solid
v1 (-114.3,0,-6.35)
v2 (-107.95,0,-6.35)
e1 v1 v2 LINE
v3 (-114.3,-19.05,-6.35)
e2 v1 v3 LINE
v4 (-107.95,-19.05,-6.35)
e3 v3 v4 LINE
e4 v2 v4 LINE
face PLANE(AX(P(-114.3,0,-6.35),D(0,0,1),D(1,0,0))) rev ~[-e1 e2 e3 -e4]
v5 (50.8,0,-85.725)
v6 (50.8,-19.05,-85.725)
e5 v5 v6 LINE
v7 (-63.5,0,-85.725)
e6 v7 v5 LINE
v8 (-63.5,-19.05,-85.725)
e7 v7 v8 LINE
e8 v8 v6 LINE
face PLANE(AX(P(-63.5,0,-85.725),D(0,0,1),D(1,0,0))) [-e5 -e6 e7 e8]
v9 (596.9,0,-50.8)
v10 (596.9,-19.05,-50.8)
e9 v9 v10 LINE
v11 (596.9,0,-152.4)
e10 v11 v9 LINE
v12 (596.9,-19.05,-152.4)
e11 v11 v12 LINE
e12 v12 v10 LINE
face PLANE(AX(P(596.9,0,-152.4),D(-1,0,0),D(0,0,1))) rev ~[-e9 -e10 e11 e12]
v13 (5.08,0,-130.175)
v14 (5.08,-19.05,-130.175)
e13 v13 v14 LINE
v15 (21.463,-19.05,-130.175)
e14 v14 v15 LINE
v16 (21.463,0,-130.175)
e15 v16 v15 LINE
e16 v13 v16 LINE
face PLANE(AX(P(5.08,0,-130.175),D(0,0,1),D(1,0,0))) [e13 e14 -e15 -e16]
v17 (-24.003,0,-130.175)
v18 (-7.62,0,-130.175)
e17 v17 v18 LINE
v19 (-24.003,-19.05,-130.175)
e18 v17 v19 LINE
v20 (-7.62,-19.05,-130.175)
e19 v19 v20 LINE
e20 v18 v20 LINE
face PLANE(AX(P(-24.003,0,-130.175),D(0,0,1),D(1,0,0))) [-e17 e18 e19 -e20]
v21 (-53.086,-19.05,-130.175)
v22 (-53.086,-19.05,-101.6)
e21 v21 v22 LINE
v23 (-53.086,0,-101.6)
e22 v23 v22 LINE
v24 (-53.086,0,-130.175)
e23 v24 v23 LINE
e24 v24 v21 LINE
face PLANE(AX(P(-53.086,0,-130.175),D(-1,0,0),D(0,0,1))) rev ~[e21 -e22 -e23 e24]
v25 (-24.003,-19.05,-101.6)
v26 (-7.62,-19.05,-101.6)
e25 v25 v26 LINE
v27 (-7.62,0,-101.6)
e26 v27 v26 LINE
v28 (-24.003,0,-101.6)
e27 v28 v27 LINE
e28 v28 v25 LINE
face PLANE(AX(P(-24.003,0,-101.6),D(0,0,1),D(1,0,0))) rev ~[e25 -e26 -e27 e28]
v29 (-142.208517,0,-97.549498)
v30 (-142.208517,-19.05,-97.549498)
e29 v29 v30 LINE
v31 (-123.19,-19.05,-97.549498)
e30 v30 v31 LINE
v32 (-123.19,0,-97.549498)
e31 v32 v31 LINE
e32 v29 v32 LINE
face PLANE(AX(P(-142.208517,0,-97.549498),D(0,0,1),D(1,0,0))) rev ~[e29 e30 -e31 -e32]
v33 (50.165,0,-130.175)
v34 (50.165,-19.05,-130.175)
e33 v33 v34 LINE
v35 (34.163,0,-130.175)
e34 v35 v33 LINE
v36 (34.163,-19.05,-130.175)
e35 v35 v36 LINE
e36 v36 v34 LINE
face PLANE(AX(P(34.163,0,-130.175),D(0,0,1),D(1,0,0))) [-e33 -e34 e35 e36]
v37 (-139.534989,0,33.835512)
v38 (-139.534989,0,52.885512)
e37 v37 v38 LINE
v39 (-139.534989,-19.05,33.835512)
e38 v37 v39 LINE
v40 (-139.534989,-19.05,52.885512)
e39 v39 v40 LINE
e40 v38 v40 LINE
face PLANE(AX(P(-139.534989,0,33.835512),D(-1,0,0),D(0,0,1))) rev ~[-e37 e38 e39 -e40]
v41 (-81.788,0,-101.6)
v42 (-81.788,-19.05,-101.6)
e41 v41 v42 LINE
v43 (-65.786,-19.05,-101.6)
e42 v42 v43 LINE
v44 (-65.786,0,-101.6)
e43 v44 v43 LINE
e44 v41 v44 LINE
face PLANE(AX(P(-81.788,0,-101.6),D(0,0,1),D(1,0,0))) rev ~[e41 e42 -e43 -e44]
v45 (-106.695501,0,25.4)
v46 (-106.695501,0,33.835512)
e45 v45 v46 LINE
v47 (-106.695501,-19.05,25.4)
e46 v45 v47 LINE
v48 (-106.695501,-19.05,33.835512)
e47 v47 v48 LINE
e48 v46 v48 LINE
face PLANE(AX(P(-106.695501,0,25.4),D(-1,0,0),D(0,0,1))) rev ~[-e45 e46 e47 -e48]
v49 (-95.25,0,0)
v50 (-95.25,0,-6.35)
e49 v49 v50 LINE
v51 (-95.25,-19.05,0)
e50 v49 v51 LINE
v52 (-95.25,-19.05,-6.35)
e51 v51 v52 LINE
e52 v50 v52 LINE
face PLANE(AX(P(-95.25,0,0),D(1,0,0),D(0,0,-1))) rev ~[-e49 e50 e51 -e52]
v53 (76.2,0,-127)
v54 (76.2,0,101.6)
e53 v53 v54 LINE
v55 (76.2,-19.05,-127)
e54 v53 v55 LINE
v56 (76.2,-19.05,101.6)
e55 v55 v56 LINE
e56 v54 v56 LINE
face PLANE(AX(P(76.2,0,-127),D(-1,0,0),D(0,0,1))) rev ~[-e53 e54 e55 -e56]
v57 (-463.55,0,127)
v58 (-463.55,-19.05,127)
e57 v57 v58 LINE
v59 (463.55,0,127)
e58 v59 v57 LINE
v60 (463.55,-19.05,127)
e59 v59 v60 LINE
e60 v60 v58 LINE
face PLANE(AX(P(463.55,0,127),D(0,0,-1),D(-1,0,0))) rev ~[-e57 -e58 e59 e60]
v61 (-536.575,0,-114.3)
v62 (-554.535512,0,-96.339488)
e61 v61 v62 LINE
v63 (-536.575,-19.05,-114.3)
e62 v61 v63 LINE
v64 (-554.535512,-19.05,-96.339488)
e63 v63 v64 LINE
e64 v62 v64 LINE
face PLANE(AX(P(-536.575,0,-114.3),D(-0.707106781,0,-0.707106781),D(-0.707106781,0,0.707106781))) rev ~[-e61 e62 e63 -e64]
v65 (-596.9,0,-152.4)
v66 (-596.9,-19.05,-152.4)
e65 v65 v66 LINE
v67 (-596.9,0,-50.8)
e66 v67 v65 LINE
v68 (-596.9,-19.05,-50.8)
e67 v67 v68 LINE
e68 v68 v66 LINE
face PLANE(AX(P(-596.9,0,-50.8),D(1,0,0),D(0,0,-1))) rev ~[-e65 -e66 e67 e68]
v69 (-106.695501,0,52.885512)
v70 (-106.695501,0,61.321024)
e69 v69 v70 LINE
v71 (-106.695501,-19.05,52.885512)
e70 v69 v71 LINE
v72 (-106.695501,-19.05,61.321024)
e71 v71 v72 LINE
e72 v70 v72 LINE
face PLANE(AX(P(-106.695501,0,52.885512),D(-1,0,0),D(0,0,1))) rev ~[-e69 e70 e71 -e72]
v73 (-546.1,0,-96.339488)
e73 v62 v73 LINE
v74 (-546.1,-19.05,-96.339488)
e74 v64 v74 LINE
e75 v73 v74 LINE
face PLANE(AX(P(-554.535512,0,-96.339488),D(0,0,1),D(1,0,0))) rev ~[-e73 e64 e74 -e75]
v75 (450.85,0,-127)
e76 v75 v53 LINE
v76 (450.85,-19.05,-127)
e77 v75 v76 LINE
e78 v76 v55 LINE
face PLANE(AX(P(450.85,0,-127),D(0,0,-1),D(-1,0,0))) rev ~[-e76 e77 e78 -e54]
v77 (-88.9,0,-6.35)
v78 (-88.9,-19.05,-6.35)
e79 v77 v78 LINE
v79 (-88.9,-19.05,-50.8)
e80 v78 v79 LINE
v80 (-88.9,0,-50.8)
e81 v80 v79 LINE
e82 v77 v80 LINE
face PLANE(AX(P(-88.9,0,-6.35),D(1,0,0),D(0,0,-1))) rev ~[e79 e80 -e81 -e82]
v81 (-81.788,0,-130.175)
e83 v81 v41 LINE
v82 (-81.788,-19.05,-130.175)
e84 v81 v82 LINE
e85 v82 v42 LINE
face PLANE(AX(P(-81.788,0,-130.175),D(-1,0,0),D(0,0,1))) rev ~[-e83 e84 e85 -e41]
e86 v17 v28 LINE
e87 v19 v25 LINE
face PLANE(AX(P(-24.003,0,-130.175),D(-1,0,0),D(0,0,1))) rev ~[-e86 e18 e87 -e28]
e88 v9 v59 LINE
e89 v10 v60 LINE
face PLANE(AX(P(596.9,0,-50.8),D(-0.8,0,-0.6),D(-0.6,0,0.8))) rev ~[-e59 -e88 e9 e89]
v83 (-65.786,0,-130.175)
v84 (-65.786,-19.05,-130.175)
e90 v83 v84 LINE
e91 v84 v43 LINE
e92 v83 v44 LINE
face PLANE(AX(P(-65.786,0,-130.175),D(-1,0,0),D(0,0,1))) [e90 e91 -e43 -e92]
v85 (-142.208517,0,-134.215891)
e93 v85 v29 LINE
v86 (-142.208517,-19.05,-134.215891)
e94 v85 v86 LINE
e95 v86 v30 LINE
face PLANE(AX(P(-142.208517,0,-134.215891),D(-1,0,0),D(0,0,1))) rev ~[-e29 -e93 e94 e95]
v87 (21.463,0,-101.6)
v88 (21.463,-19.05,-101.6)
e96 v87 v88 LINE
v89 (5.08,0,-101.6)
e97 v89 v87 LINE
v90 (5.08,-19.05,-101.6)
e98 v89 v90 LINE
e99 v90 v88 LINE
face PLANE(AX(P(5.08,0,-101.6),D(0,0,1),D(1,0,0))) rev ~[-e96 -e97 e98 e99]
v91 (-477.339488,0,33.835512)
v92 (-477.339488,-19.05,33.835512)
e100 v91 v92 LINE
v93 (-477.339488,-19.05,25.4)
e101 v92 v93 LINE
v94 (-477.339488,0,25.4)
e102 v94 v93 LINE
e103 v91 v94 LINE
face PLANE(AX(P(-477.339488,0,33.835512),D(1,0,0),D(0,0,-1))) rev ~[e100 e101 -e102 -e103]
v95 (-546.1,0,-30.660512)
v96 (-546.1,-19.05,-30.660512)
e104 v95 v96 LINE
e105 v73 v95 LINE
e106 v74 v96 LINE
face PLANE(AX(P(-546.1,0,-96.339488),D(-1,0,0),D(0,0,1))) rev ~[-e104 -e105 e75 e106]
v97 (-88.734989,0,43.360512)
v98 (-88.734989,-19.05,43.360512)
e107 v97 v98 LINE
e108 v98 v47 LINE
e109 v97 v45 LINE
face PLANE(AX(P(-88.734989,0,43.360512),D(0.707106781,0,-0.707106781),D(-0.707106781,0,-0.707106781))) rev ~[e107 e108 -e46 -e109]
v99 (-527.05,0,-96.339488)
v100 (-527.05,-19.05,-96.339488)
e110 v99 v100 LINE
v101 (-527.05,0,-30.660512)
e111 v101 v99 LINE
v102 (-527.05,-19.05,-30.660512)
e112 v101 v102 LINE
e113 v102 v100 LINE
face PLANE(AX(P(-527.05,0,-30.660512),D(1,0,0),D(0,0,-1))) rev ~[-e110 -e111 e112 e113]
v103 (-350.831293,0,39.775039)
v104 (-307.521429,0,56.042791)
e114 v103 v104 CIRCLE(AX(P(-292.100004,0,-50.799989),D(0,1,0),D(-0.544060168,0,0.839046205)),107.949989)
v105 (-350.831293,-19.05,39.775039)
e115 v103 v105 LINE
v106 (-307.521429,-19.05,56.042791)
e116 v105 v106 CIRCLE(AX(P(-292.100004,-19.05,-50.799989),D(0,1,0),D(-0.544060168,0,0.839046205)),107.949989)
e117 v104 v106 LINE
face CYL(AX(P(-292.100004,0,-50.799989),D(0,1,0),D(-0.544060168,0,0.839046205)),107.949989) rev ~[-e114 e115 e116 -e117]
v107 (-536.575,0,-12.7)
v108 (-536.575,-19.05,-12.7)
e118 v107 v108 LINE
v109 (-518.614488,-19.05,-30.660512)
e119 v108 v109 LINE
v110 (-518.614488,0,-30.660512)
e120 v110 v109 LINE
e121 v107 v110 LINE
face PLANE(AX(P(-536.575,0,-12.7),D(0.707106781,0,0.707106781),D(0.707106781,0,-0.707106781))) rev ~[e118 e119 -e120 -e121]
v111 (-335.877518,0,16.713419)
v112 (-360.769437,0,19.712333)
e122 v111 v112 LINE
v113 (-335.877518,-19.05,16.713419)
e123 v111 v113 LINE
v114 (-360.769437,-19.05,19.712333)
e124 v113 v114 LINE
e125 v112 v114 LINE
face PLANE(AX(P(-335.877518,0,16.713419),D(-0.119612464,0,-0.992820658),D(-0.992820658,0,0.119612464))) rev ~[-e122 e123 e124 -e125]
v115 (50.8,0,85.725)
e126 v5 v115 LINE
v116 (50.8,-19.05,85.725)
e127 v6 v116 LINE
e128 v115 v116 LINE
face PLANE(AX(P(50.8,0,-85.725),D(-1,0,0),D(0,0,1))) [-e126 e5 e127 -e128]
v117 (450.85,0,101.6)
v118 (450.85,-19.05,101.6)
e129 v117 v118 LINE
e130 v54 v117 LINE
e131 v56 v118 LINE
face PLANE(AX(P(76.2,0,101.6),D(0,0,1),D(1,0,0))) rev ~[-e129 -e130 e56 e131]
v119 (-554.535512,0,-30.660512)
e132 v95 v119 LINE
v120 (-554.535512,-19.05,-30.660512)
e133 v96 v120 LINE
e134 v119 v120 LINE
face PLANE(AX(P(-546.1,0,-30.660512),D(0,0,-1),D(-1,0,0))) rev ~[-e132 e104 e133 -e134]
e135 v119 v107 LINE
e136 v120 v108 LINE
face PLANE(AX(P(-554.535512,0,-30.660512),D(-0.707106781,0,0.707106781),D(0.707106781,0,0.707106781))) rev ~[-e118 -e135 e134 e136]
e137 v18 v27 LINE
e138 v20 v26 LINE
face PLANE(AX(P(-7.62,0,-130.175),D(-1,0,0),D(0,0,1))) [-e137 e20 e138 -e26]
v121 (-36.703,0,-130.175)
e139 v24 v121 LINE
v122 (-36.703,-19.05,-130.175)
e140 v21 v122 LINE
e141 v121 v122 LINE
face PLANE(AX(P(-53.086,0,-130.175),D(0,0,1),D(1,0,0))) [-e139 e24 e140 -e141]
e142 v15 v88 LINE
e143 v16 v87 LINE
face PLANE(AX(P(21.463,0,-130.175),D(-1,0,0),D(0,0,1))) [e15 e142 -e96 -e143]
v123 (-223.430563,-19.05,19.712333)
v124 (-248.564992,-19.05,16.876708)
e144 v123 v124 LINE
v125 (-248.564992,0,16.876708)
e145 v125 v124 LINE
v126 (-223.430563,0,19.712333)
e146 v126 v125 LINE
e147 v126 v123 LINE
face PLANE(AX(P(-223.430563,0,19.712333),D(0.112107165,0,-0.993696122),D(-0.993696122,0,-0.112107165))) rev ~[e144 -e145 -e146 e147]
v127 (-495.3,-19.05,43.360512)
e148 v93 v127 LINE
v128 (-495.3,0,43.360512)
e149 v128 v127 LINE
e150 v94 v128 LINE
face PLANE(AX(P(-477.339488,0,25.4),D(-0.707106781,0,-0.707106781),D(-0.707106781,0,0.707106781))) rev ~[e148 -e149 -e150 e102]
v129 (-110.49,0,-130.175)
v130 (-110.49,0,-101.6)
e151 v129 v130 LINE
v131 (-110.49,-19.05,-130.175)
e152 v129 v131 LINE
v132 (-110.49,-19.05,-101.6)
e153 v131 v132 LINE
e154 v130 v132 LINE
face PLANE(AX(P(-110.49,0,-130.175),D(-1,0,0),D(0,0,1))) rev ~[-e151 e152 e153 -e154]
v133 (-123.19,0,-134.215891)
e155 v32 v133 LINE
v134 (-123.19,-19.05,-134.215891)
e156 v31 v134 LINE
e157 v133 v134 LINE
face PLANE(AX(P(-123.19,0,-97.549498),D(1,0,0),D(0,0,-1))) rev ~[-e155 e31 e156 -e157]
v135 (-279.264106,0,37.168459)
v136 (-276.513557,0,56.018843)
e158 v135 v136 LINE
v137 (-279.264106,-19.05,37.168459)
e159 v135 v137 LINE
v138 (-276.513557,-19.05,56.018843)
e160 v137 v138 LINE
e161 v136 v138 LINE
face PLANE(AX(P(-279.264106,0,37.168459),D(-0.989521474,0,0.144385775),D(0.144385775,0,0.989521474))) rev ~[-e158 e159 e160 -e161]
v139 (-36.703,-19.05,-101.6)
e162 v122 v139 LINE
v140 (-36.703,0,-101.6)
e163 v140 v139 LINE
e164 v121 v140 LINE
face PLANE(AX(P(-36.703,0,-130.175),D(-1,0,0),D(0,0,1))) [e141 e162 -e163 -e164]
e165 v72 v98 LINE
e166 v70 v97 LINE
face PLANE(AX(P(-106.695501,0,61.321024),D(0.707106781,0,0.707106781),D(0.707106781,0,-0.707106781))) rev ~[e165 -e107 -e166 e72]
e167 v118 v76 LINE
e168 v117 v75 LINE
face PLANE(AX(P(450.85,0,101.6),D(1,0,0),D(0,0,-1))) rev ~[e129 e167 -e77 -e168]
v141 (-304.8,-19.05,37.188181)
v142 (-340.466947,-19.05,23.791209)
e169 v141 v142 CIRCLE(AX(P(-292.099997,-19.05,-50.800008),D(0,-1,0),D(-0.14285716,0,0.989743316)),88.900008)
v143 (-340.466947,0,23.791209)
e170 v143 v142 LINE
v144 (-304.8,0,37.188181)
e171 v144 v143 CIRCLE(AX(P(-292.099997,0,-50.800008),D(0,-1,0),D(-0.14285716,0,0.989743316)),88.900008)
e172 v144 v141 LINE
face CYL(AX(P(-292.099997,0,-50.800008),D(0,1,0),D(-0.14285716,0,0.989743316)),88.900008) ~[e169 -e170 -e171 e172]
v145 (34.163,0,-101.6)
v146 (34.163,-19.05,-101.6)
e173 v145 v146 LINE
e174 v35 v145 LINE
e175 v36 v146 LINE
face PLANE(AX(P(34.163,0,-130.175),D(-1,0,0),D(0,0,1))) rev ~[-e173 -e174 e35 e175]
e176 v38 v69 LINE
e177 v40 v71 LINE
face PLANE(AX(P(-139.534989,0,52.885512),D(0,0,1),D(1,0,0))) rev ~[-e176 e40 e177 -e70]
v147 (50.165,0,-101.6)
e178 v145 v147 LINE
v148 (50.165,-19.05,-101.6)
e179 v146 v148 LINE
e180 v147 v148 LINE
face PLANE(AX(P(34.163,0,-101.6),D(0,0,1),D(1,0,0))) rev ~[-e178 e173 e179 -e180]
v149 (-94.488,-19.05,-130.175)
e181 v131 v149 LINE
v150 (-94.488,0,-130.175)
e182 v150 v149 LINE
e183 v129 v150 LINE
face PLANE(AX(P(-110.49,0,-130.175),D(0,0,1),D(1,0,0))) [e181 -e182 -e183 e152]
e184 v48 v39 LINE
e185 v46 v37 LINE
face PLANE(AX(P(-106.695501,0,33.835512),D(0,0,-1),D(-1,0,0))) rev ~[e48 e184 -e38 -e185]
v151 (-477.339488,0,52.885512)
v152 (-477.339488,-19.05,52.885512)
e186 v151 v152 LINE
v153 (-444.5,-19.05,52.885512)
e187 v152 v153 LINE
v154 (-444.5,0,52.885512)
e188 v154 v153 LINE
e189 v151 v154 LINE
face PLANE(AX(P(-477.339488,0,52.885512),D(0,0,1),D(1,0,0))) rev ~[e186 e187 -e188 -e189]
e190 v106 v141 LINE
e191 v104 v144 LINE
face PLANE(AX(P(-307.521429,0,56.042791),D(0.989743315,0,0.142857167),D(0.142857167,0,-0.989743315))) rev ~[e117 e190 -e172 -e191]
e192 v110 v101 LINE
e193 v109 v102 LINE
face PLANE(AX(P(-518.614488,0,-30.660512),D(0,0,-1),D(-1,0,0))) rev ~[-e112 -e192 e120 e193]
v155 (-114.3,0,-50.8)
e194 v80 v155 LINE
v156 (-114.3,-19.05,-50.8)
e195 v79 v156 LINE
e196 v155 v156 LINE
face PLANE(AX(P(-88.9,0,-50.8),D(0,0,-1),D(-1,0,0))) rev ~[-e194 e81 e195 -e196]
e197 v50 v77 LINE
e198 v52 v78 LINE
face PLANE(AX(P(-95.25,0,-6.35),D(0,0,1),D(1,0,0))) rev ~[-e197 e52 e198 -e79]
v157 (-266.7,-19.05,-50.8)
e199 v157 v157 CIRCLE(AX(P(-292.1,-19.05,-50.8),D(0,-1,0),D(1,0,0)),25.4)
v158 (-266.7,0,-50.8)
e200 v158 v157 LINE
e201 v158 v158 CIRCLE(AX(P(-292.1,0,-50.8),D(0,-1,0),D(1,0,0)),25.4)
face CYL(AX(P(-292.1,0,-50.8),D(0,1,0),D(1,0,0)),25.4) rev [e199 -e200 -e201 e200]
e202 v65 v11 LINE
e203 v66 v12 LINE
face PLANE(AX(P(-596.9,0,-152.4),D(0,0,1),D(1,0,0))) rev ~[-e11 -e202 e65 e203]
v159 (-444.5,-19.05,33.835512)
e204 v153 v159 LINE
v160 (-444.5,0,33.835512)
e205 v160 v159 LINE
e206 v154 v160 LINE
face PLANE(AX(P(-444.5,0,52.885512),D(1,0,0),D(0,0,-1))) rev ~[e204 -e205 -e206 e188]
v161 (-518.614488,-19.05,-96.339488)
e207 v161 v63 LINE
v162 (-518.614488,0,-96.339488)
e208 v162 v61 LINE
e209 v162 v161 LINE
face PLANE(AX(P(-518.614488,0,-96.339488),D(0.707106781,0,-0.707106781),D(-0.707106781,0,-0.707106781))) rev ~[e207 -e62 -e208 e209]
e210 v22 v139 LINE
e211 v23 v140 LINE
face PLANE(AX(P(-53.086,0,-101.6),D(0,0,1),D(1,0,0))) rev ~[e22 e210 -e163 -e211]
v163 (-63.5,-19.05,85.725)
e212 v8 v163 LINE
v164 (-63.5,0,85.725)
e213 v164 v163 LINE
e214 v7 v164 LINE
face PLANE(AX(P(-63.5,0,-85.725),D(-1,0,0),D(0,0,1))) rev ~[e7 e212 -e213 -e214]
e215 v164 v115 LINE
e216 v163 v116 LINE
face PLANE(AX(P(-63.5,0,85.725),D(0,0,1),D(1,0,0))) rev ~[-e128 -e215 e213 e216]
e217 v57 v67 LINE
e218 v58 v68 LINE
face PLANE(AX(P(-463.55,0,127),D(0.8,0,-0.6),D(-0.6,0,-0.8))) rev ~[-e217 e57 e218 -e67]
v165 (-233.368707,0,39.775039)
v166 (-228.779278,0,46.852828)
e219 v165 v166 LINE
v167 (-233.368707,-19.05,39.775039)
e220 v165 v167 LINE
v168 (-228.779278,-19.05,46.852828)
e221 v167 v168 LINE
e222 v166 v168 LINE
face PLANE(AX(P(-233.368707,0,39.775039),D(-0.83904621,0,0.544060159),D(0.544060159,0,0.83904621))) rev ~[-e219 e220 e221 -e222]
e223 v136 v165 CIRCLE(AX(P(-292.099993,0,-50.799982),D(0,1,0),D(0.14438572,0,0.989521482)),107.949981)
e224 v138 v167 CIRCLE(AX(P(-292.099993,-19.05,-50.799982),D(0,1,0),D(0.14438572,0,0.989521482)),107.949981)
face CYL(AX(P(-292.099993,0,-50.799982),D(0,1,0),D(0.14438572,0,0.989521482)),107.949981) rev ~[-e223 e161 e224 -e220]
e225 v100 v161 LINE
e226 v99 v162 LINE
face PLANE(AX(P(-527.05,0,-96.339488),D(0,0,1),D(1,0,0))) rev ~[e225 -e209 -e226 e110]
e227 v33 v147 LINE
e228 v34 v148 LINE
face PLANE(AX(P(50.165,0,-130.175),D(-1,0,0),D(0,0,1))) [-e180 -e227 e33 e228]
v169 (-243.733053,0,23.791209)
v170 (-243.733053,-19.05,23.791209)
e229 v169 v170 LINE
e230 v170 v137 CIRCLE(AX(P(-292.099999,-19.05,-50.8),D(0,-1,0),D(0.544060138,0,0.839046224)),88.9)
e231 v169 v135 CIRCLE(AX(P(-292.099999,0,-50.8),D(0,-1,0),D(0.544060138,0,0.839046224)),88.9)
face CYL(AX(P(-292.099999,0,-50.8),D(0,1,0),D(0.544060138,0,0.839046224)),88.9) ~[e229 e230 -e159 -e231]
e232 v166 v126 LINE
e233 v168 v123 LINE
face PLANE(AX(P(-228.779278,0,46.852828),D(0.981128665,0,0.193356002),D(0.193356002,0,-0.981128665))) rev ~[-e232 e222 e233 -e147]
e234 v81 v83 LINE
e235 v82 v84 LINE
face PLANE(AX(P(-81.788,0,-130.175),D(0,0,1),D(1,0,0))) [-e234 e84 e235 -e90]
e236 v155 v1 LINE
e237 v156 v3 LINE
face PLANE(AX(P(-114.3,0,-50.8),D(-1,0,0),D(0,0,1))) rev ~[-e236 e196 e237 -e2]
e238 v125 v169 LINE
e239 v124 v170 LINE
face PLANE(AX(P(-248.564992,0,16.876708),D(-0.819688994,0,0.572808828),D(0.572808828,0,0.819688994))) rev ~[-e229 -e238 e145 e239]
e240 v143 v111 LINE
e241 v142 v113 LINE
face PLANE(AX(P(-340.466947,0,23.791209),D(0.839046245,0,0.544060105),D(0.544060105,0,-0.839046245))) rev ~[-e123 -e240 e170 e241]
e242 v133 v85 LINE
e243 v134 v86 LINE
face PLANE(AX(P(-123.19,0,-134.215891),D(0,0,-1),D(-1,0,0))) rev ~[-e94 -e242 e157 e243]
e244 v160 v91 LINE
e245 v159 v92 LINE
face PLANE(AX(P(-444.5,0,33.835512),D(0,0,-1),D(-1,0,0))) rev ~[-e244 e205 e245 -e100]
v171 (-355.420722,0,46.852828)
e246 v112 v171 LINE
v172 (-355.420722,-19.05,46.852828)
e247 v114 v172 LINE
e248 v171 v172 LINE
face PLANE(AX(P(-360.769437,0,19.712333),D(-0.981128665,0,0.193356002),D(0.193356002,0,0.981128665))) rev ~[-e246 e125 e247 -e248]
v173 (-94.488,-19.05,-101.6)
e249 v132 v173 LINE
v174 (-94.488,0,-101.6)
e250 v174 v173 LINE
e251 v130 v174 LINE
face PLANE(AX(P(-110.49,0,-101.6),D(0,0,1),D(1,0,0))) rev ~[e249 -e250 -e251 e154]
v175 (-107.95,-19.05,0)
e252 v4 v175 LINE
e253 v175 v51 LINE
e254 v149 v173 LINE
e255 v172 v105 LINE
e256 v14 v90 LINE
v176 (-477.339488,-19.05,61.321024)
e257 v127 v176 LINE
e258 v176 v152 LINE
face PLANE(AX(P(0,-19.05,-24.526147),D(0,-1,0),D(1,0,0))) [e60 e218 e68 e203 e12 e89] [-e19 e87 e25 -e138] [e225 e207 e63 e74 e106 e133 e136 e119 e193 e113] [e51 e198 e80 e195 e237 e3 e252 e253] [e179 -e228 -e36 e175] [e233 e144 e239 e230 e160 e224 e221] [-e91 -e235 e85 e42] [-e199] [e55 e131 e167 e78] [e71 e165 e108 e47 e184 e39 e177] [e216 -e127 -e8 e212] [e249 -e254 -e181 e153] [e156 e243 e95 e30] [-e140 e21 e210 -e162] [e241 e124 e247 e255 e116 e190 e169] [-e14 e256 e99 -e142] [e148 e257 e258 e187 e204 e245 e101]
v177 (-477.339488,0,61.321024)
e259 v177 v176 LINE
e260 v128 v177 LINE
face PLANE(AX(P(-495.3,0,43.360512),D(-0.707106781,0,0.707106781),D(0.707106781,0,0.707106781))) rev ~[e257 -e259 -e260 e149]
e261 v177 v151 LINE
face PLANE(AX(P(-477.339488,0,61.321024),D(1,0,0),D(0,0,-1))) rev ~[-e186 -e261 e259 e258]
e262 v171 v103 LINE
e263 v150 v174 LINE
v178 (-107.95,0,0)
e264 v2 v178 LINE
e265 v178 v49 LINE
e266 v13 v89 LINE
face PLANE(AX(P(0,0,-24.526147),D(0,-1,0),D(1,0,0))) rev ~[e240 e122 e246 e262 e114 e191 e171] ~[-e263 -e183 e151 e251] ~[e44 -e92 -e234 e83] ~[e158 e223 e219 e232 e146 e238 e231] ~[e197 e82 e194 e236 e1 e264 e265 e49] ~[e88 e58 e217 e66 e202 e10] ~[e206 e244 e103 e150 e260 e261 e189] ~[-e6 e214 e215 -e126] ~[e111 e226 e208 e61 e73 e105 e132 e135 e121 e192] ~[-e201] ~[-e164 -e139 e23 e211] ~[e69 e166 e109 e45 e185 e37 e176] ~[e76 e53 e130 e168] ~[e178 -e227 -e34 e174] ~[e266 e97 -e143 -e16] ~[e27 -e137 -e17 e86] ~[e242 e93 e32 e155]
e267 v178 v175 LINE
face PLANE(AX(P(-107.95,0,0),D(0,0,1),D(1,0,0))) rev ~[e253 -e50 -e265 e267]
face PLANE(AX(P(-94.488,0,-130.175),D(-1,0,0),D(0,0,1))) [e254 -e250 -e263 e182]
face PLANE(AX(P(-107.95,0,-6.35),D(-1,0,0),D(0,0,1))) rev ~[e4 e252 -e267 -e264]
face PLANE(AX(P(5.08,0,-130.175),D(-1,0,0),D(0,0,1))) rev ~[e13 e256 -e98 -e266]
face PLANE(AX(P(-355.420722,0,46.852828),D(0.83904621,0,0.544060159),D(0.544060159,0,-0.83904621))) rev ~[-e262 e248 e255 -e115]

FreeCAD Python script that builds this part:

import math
import FreeCAD as App
import Part
import Sketcher
Q = App.Units.Quantity

doc = App.newDocument("Part")
body = doc.addObject("PartDesign::Body", "Body")

sketch1 = doc.addObject("Sketcher::SketchObject", "Sketch")
body.addObject(sketch1)
sketch1.AttachmentSupport = (doc.XZ_Plane, [""])
sketch1.MapMode = "FlatFace"
sketch1.addGeometry([
    Part.LineSegment(App.Vector(-596.9, -50.8, 0), App.Vector(-596.9, -152.4, 0)),
    Part.LineSegment(App.Vector(-596.9, -152.4, 0), App.Vector(596.9, -152.4, 0)),
    Part.LineSegment(App.Vector(596.9, -152.4, 0), App.Vector(596.9, -50.8, 0)),
    Part.LineSegment(App.Vector(596.9, -50.8, 0), App.Vector(463.55, 127, 0)),
    Part.LineSegment(App.Vector(463.55, 127, 0), App.Vector(-463.55, 127, 0)),
    Part.LineSegment(App.Vector(-463.55, 127, 0), App.Vector(-596.9, -50.8, 0)),
    Part.LineSegment(App.Vector(-142.208517, -97.549498, 0), App.Vector(-123.19, -97.549498, 0)),
    Part.LineSegment(App.Vector(-123.19, -97.549498, 0), App.Vector(-123.19, -134.215891, 0)),
    Part.LineSegment(App.Vector(-123.19, -134.215891, 0), App.Vector(-142.208517, -134.215891, 0)),
    Part.LineSegment(App.Vector(-142.208517, -134.215891, 0), App.Vector(-142.208517, -97.549498, 0)),
    Part.LineSegment(App.Vector(-94.488, -130.175, 0), App.Vector(-110.49, -130.175, 0)),
    Part.LineSegment(App.Vector(-110.49, -130.175, 0), App.Vector(-110.49, -101.6, 0)),
    Part.LineSegment(App.Vector(-110.49, -101.6, 0), App.Vector(-94.488, -101.6, 0)),
    Part.LineSegment(App.Vector(-94.488, -101.6, 0), App.Vector(-94.488, -130.175, 0)),
    Part.LineSegment(App.Vector(-65.786, -130.175, 0), App.Vector(-81.788, -130.175, 0)),
    Part.LineSegment(App.Vector(-81.788, -130.175, 0), App.Vector(-81.788, -101.6, 0)),
    Part.LineSegment(App.Vector(-81.788, -101.6, 0), App.Vector(-65.786, -101.6, 0)),
    Part.LineSegment(App.Vector(-65.786, -101.6, 0), App.Vector(-65.786, -130.175, 0)),
    Part.LineSegment(App.Vector(-527.05, -96.339488, 0), App.Vector(-518.614488, -96.339488, 0)),
    Part.LineSegment(App.Vector(-518.614488, -96.339488, 0), App.Vector(-536.575, -114.3, 0)),
    Part.LineSegment(App.Vector(-536.575, -114.3, 0), App.Vector(-554.535512, -96.339488, 0)),
    Part.LineSegment(App.Vector(-554.535512, -96.339488, 0), App.Vector(-546.1, -96.339488, 0)),
    Part.LineSegment(App.Vector(-546.1, -96.339488, 0), App.Vector(-546.1, -30.660512, 0)),
    Part.LineSegment(App.Vector(-546.1, -30.660512, 0), App.Vector(-554.535512, -30.660512, 0)),
    Part.LineSegment(App.Vector(-554.535512, -30.660512, 0), App.Vector(-536.575, -12.7, 0)),
    Part.LineSegment(App.Vector(-536.575, -12.7, 0), App.Vector(-518.614488, -30.660512, 0)),
    Part.LineSegment(App.Vector(-518.614488, -30.660512, 0), App.Vector(-527.05, -30.660512, 0)),
    Part.LineSegment(App.Vector(-527.05, -30.660512, 0), App.Vector(-527.05, -96.339488, 0)),
    Part.Circle(App.Vector(-292.1, -50.8, 0), App.Vector(0, 0, 1), 25.4),
    Part.LineSegment(App.Vector(-88.9, -6.35, 0), App.Vector(-88.9, -50.8, 0)),
    Part.LineSegment(App.Vector(-88.9, -50.8, 0), App.Vector(-114.3, -50.8, 0)),
    Part.LineSegment(App.Vector(-114.3, -50.8, 0), App.Vector(-114.3, -6.35, 0)),
    Part.LineSegment(App.Vector(-114.3, -6.35, 0), App.Vector(-107.95, -6.35, 0)),
    Part.LineSegment(App.Vector(-107.95, -6.35, 0), App.Vector(-107.95, 0, 0)),
    Part.LineSegment(App.Vector(-107.95, 0, 0), App.Vector(-95.25, 0, 0)),
    Part.LineSegment(App.Vector(-95.25, 0, 0), App.Vector(-95.25, -6.35, 0)),
    Part.LineSegment(App.Vector(-95.25, -6.35, 0), App.Vector(-88.9, -6.35, 0)),
    Part.LineSegment(App.Vector(-36.703, -130.175, 0), App.Vector(-53.086, -130.175, 0)),
    Part.LineSegment(App.Vector(-53.086, -130.175, 0), App.Vector(-53.086, -101.6, 0)),
    Part.LineSegment(App.Vector(-53.086, -101.6, 0), App.Vector(-36.703, -101.6, 0)),
    Part.LineSegment(App.Vector(-36.703, -101.6, 0), App.Vector(-36.703, -130.175, 0)),
    Part.LineSegment(App.Vector(-7.62, -130.175, 0), App.Vector(-24.003, -130.175, 0)),
    Part.LineSegment(App.Vector(-24.003, -130.175, 0), App.Vector(-24.003, -101.6, 0)),
    Part.LineSegment(App.Vector(-24.003, -101.6, 0), App.Vector(-7.62, -101.6, 0)),
    Part.LineSegment(App.Vector(-7.62, -101.6, 0), App.Vector(-7.62, -130.175, 0)),
    Part.LineSegment(App.Vector(21.463, -130.175, 0), App.Vector(5.08, -130.175, 0)),
    Part.LineSegment(App.Vector(5.08, -130.175, 0), App.Vector(5.08, -101.6, 0)),
    Part.LineSegment(App.Vector(5.08, -101.6, 0), App.Vector(21.463, -101.6, 0)),
    Part.LineSegment(App.Vector(21.463, -101.6, 0), App.Vector(21.463, -130.175, 0)),
    Part.LineSegment(App.Vector(50.165, -130.175, 0), App.Vector(34.163, -130.175, 0)),
    Part.LineSegment(App.Vector(34.163, -130.175, 0), App.Vector(34.163, -101.6, 0)),
    Part.LineSegment(App.Vector(34.163, -101.6, 0), App.Vector(50.165, -101.6, 0)),
    Part.LineSegment(App.Vector(50.165, -101.6, 0), App.Vector(50.165, -130.175, 0)),
    Part.LineSegment(App.Vector(-355.420722, 46.852828, 0), App.Vector(-350.831293, 39.775039, 0)),
    Part.ArcOfCircle(Part.Circle(App.Vector(-292.100004, -50.799989, 0), App.Vector(0, 0, 1), 107.949989), math.radians(98.21321), math.radians(122.960462)),
    Part.LineSegment(App.Vector(-307.521429, 56.042791, 0), App.Vector(-304.8, 37.188181, 0)),
    Part.ArcOfCircle(Part.Circle(App.Vector(-292.099997, -50.800008, 0), App.Vector(0, 0, 1), 88.900008), math.radians(98.213212), math.radians(122.960459)),
    Part.LineSegment(App.Vector(-340.466947, 23.791209, 0), App.Vector(-335.877518, 16.713419, 0)),
    Part.LineSegment(App.Vector(-335.877518, 16.713419, 0), App.Vector(-360.769437, 19.712333, 0)),
    Part.LineSegment(App.Vector(-360.769437, 19.712333, 0), App.Vector(-355.420722, 46.852828, 0)),
    Part.ArcOfCircle(Part.Circle(App.Vector(-292.099999, -50.8, 0), App.Vector(0, 0, 1), 88.9), math.radians(57.03954), math.radians(81.698289)),
    Part.LineSegment(App.Vector(-279.264106, 37.168459, 0), App.Vector(-276.513557, 56.018843, 0)),
    Part.ArcOfCircle(Part.Circle(App.Vector(-292.099993, -50.799982, 0), App.Vector(0, 0, 1), 107.949981), math.radians(57.039537), math.radians(81.698291)),
    Part.LineSegment(App.Vector(-233.368707, 39.775039, 0), App.Vector(-228.779278, 46.852828, 0)),
    Part.LineSegment(App.Vector(-228.779278, 46.852828, 0), App.Vector(-223.430563, 19.712333, 0)),
    Part.LineSegment(App.Vector(-223.430563, 19.712333, 0), App.Vector(-248.564992, 16.876708, 0)),
    Part.LineSegment(App.Vector(-248.564992, 16.876708, 0), App.Vector(-243.733053, 23.791209, 0)),
    Part.LineSegment(App.Vector(-477.339488, 61.321024, 0), App.Vector(-477.339488, 52.885512, 0)),
    Part.LineSegment(App.Vector(-477.339488, 52.885512, 0), App.Vector(-444.5, 52.885512, 0)),
    Part.LineSegment(App.Vector(-444.5, 52.885512, 0), App.Vector(-444.5, 33.835512, 0)),
    Part.LineSegment(App.Vector(-444.5, 33.835512, 0), App.Vector(-477.339488, 33.835512, 0)),
    Part.LineSegment(App.Vector(-477.339488, 33.835512, 0), App.Vector(-477.339488, 25.4, 0)),
    Part.LineSegment(App.Vector(-477.339488, 25.4, 0), App.Vector(-495.3, 43.360512, 0)),
    Part.LineSegment(App.Vector(-495.3, 43.360512, 0), App.Vector(-477.339488, 61.321024, 0)),
    Part.LineSegment(App.Vector(-106.695501, 33.835512, 0), App.Vector(-139.534989, 33.835512, 0)),
    Part.LineSegment(App.Vector(-139.534989, 33.835512, 0), App.Vector(-139.534989, 52.885512, 0)),
    Part.LineSegment(App.Vector(-139.534989, 52.885512, 0), App.Vector(-106.695501, 52.885512, 0)),
    Part.LineSegment(App.Vector(-106.695501, 52.885512, 0), App.Vector(-106.695501, 61.321024, 0)),
    Part.LineSegment(App.Vector(-106.695501, 61.321024, 0), App.Vector(-88.734989, 43.360512, 0)),
    Part.LineSegment(App.Vector(-88.734989, 43.360512, 0), App.Vector(-106.695501, 25.4, 0)),
    Part.LineSegment(App.Vector(-106.695501, 25.4, 0), App.Vector(-106.695501, 33.835512, 0)),
    Part.LineSegment(App.Vector(50.8, -85.725, 0), App.Vector(-63.5, -85.725, 0)),
    Part.LineSegment(App.Vector(-63.5, -85.725, 0), App.Vector(-63.5, 85.725, 0)),
    Part.LineSegment(App.Vector(-63.5, 85.725, 0), App.Vector(50.8, 85.725, 0)),
    Part.LineSegment(App.Vector(50.8, 85.725, 0), App.Vector(50.8, -85.725, 0)),
    Part.LineSegment(App.Vector(450.85, 101.6, 0), App.Vector(450.85, -127, 0)),
    Part.LineSegment(App.Vector(450.85, -127, 0), App.Vector(76.2, -127, 0)),
    Part.LineSegment(App.Vector(76.2, -127, 0), App.Vector(76.2, 101.6, 0)),
    Part.LineSegment(App.Vector(76.2, 101.6, 0), App.Vector(450.85, 101.6, 0)),
], False)
sketch1.addConstraint([
    Sketcher.Constraint("Coincident", 0, 2, 1, 1),
    Sketcher.Constraint("Coincident", 1, 2, 2, 1),
    Sketcher.Constraint("Coincident", 2, 2, 3, 1),
    Sketcher.Constraint("Coincident", 3, 2, 4, 1),
    Sketcher.Constraint("Coincident", 4, 2, 5, 1),
    Sketcher.Constraint("Coincident", 5, 2, 0, 1),
    Sketcher.Constraint("Coincident", 6, 2, 7, 1),
    Sketcher.Constraint("Coincident", 7, 2, 8, 1),
    Sketcher.Constraint("Coincident", 8, 2, 9, 1),
    Sketcher.Constraint("Coincident", 9, 2, 6, 1),
    Sketcher.Constraint("Coincident", 10, 2, 11, 1),
    Sketcher.Constraint("Coincident", 11, 2, 12, 1),
    Sketcher.Constraint("Coincident", 12, 2, 13, 1),
    Sketcher.Constraint("Coincident", 13, 2, 10, 1),
    Sketcher.Constraint("Coincident", 14, 2, 15, 1),
    Sketcher.Constraint("Coincident", 15, 2, 16, 1),
    Sketcher.Constraint("Coincident", 16, 2, 17, 1),
    Sketcher.Constraint("Coincident", 17, 2, 14, 1),
    Sketcher.Constraint("Coincident", 18, 2, 19, 1),
    Sketcher.Constraint("Coincident", 19, 2, 20, 1),
    Sketcher.Constraint("Coincident", 20, 2, 21, 1),
    Sketcher.Constraint("Coincident", 21, 2, 22, 1),
    Sketcher.Constraint("Coincident", 22, 2, 23, 1),
    Sketcher.Constraint("Coincident", 23, 2, 24, 1),
    Sketcher.Constraint("Coincident", 24, 2, 25, 1),
    Sketcher.Constraint("Coincident", 25, 2, 26, 1),
    Sketcher.Constraint("Coincident", 26, 2, 27, 1),
    Sketcher.Constraint("Coincident", 27, 2, 18, 1),
    Sketcher.Constraint("Coincident", 29, 2, 30, 1),
    Sketcher.Constraint("Coincident", 30, 2, 31, 1),
    Sketcher.Constraint("Coincident", 31, 2, 32, 1),
    Sketcher.Constraint("Coincident", 32, 2, 33, 1),
    Sketcher.Constraint("Coincident", 33, 2, 34, 1),
    Sketcher.Constraint("Coincident", 34, 2, 35, 1),
    Sketcher.Constraint("Coincident", 35, 2, 36, 1),
    Sketcher.Constraint("Coincident", 36, 2, 29, 1),
    Sketcher.Constraint("Coincident", 37, 2, 38, 1),
    Sketcher.Constraint("Coincident", 38, 2, 39, 1),
    Sketcher.Constraint("Coincident", 39, 2, 40, 1),
    Sketcher.Constraint("Coincident", 40, 2, 37, 1),
    Sketcher.Constraint("Coincident", 41, 2, 42, 1),
    Sketcher.Constraint("Coincident", 42, 2, 43, 1),
    Sketcher.Constraint("Coincident", 43, 2, 44, 1),
    Sketcher.Constraint("Coincident", 44, 2, 41, 1),
    Sketcher.Constraint("Coincident", 45, 2, 46, 1),
    Sketcher.Constraint("Coincident", 46, 2, 47, 1),
    Sketcher.Constraint("Coincident", 47, 2, 48, 1),
    Sketcher.Constraint("Coincident", 48, 2, 45, 1),
    Sketcher.Constraint("Coincident", 49, 2, 50, 1),
    Sketcher.Constraint("Coincident", 50, 2, 51, 1),
    Sketcher.Constraint("Coincident", 51, 2, 52, 1),
    Sketcher.Constraint("Coincident", 52, 2, 49, 1),
    Sketcher.Constraint("Coincident", 53, 2, 54, 2),
    Sketcher.Constraint("Coincident", 54, 1, 55, 1),
    Sketcher.Constraint("Coincident", 55, 2, 56, 1),
    Sketcher.Constraint("Coincident", 56, 2, 57, 1),
    Sketcher.Constraint("Coincident", 57, 2, 58, 1),
    Sketcher.Constraint("Coincident", 58, 2, 59, 1),
    Sketcher.Constraint("Coincident", 59, 2, 53, 1),
    Sketcher.Constraint("Coincident", 60, 2, 61, 1),
    Sketcher.Constraint("Coincident", 61, 2, 62, 2),
    Sketcher.Constraint("Coincident", 62, 1, 63, 1),
    Sketcher.Constraint("Coincident", 63, 2, 64, 1),
    Sketcher.Constraint("Coincident", 64, 2, 65, 1),
    Sketcher.Constraint("Coincident", 65, 2, 66, 1),
    Sketcher.Constraint("Coincident", 66, 2, 60, 1),
    Sketcher.Constraint("Coincident", 67, 2, 68, 1),
    Sketcher.Constraint("Coincident", 68, 2, 69, 1),
    Sketcher.Constraint("Coincident", 69, 2, 70, 1),
    Sketcher.Constraint("Coincident", 70, 2, 71, 1),
    Sketcher.Constraint("Coincident", 71, 2, 72, 1),
    Sketcher.Constraint("Coincident", 72, 2, 73, 1),
    Sketcher.Constraint("Coincident", 73, 2, 67, 1),
    Sketcher.Constraint("Coincident", 74, 2, 75, 1),
    Sketcher.Constraint("Coincident", 75, 2, 76, 1),
    Sketcher.Constraint("Coincident", 76, 2, 77, 1),
    Sketcher.Constraint("Coincident", 77, 2, 78, 1),
    Sketcher.Constraint("Coincident", 78, 2, 79, 1),
    Sketcher.Constraint("Coincident", 79, 2, 80, 1),
    Sketcher.Constraint("Coincident", 80, 2, 74, 1),
    Sketcher.Constraint("Coincident", 81, 2, 82, 1),
    Sketcher.Constraint("Coincident", 82, 2, 83, 1),
    Sketcher.Constraint("Coincident", 83, 2, 84, 1),
    Sketcher.Constraint("Coincident", 84, 2, 81, 1),
    Sketcher.Constraint("Coincident", 85, 2, 86, 1),
    Sketcher.Constraint("Coincident", 86, 2, 87, 1),
    Sketcher.Constraint("Coincident", 87, 2, 88, 1),
    Sketcher.Constraint("Coincident", 88, 2, 85, 1),
    Sketcher.Constraint("Vertical", 0),
    Sketcher.Constraint("Horizontal", 1),
    Sketcher.Constraint("Vertical", 2),
    Sketcher.Constraint("Horizontal", 4),
    Sketcher.Constraint("Horizontal", 6),
    Sketcher.Constraint("Vertical", 7),
    Sketcher.Constraint("Horizontal", 8),
    Sketcher.Constraint("Vertical", 9),
    Sketcher.Constraint("Horizontal", 10),
    Sketcher.Constraint("Vertical", 11),
    Sketcher.Constraint("Horizontal", 12),
    Sketcher.Constraint("Vertical", 13),
    Sketcher.Constraint("Horizontal", 14),
    Sketcher.Constraint("Vertical", 15),
    Sketcher.Constraint("Horizontal", 16),
    Sketcher.Constraint("Vertical", 17),
    Sketcher.Constraint("Horizontal", 18),
    Sketcher.Constraint("Horizontal", 21),
    Sketcher.Constraint("Vertical", 22),
    Sketcher.Constraint("Horizontal", 23),
    Sketcher.Constraint("Horizontal", 26),
    Sketcher.Constraint("Vertical", 27),
    Sketcher.Constraint("Vertical", 29),
    Sketcher.Constraint("Horizontal", 30),
    Sketcher.Constraint("Vertical", 31),
    Sketcher.Constraint("Horizontal", 32),
    Sketcher.Constraint("Vertical", 33),
    Sketcher.Constraint("Horizontal", 34),
    Sketcher.Constraint("Vertical", 35),
    Sketcher.Constraint("Horizontal", 36),
    Sketcher.Constraint("Horizontal", 37),
    Sketcher.Constraint("Vertical", 38),
    Sketcher.Constraint("Horizontal", 39),
    Sketcher.Constraint("Vertical", 40),
    Sketcher.Constraint("Horizontal", 41),
    Sketcher.Constraint("Vertical", 42),
    Sketcher.Constraint("Horizontal", 43),
    Sketcher.Constraint("Vertical", 44),
    Sketcher.Constraint("Horizontal", 45),
    Sketcher.Constraint("Vertical", 46),
    Sketcher.Constraint("Horizontal", 47),
    Sketcher.Constraint("Vertical", 48),
    Sketcher.Constraint("Horizontal", 49),
    Sketcher.Constraint("Vertical", 50),
    Sketcher.Constraint("Horizontal", 51),
    Sketcher.Constraint("Vertical", 52),
    Sketcher.Constraint("Vertical", 67),
    Sketcher.Constraint("Horizontal", 68),
    Sketcher.Constraint("Vertical", 69),
    Sketcher.Constraint("Horizontal", 70),
    Sketcher.Constraint("Vertical", 71),
    Sketcher.Constraint("Horizontal", 74),
    Sketcher.Constraint("Vertical", 75),
    Sketcher.Constraint("Horizontal", 76),
    Sketcher.Constraint("Vertical", 77),
    Sketcher.Constraint("Vertical", 80),
    Sketcher.Constraint("Horizontal", 81),
    Sketcher.Constraint("Vertical", 82),
    Sketcher.Constraint("Horizontal", 83),
    Sketcher.Constraint("Vertical", 84),
    Sketcher.Constraint("Vertical", 85),
    Sketcher.Constraint("Horizontal", 86),
    Sketcher.Constraint("Vertical", 87),
    Sketcher.Constraint("Horizontal", 88),
    Sketcher.Constraint("Coincident", 56, 3, 28, 3),
    Sketcher.Constraint("Coincident", 60, 3, 28, 3),
    Sketcher.Constraint("PointOnObject", 33, 2, -1),
    Sketcher.Constraint("Diameter", 28, Q("2 in")),
    Sketcher.Constraint("Radius", 60, Q("3.5 in")),
    Sketcher.Constraint("DistanceX", 1, 1, 1, 2, Q("47 in")),
    Sketcher.Constraint("DistanceX", 30, 2, 30, 1, Q("1 in")),
    Sketcher.Constraint("DistanceY", 0, 2, 0, 1, Q("4 in")),
    Sketcher.Constraint("DistanceY", 2, 1, 2, 2, Q("4 in")),
    Sketcher.Constraint("DistanceY", 85, 2, 85, 1, Q("9 in")),
    Sketcher.Constraint("Distance", 19, Q("1 in")),
    Sketcher.Constraint("Distance", 20, Q("1 in")),
    Sketcher.Constraint("Distance", 24, Q("1 in")),
    Sketcher.Constraint("Distance", 25, Q("1 in")),
    Sketcher.Constraint("Distance", 72, Q("1 in")),
    Sketcher.Constraint("Distance", 73, Q("1 in")),
    Sketcher.Constraint("Distance", 78, Q("1 in")),
    Sketcher.Constraint("Distance", 79, Q("1 in")),
    Sketcher.Constraint("DistanceX", 4, 2, 4, 1, Q("36.5 in")),
    Sketcher.Constraint("DistanceX", 34, 1, 34, 2, Q("0.5 in")),
    Sketcher.Constraint("DistanceX", 81, 2, 81, 1, Q("4.5 in")),
    Sketcher.Constraint("DistanceY", 28, 3, -1, 1, Q("2 in")),
    Sketcher.Constraint("DistanceY", 0, 2, -1, 1, Q("6 in")),
    Sketcher.Constraint("DistanceY", -1, 1, 3, 2, Q("5 in")),
    Sketcher.Constraint("DistanceY", 11, 2, -1, 1, Q("4 in")),
    Sketcher.Constraint("DistanceY", 15, 2, -1, 1, Q("4 in")),
    Sketcher.Constraint("DistanceY", 29, 2, -1, 1, Q("2 in")),
    Sketcher.Constraint("DistanceY", 38, 2, -1, 1, Q("4 in")),
    Sketcher.Constraint("DistanceY", 42, 2, -1, 1, Q("4 in")),
    Sketcher.Constraint("DistanceY", 46, 2, -1, 1, Q("4 in")),
    Sketcher.Constraint("DistanceY", 50, 2, -1, 1, Q("4 in")),
    Sketcher.Constraint("DistanceX", 55, 2, -1, 1, Q("12 in")),
    Sketcher.Constraint("DistanceY", -1, 1, 71, 2, Q("1 in")),
    Sketcher.Constraint("DistanceY", -1, 1, 79, 2, Q("1 in")),
    Sketcher.Constraint("DistanceX", -1, 1, 83, 2, Q("2 in")),
    Sketcher.Constraint("DistanceY", 85, 2, -1, 1, Q("5 in")),
    Sketcher.Constraint("DistanceX", -1, 1, 86, 2, Q("3 in")),
    Sketcher.Constraint("DistanceX", 10, 2, 10, 1, Q("0.63 in")),
    Sketcher.Constraint("DistanceX", 14, 2, 14, 1, Q("0.63 in")),
    Sketcher.Constraint("DistanceX", 32, 1, 32, 2, Q("0.25 in")),
    Sketcher.Constraint("DistanceX", 49, 2, 49, 1, Q("0.63 in")),
    Sketcher.Constraint("DistanceX", 86, 2, 86, 1, Q("14.75 in")),
    Sketcher.Constraint("DistanceY", 29, 2, 29, 1, Q("1.75 in")),
    Sketcher.Constraint("DistanceY", 31, 1, 31, 2, Q("1.75 in")),
    Sketcher.Constraint("DistanceY", 69, 2, 69, 1, Q("0.75 in")),
    Sketcher.Constraint("DistanceY", 75, 1, 75, 2, Q("0.75 in")),
    Sketcher.Constraint("DistanceY", 82, 1, 82, 2, Q("6.75 in")),
    Sketcher.Constraint("DistanceX", 28, 3, -1, 1, Q("11.5 in")),
    Sketcher.Constraint("DistanceX", 54, 3, -1, 1, Q("11.5000002 in")),
    Sketcher.Constraint("DistanceX", 0, 2, -1, 1, Q("23.5 in")),
    Sketcher.Constraint("DistanceY", 19, 2, -1, 1, Q("4.5 in")),
    Sketcher.Constraint("DistanceX", 21, 2, -1, 1, Q("21.5 in")),
    Sketcher.Constraint("DistanceY", 24, 2, -1, 1, Q("0.5 in")),
    Sketcher.Constraint("DistanceX", 29, 2, -1, 1, Q("3.5 in")),
    Sketcher.Constraint("DistanceX", 43, 2, -1, 1, Q("0.3 in")),
    Sketcher.Constraint("DistanceX", -1, 1, 45, 2, Q("0.2 in")),
    Sketcher.Constraint("DistanceX", 68, 2, -1, 1, Q("17.5 in")),
    Sketcher.Constraint("DistanceX", 72, 2, -1, 1, Q("19.5 in")),
    Sketcher.Constraint("Distance", 3, Q("8.75 in")),
    Sketcher.Constraint("Distance", 55, Q("0.75 in")),
    Sketcher.Constraint("Distance", 61, Q("0.75 in")),
    Sketcher.Constraint("DistanceX", 37, 2, 37, 1, Q("0.645 in")),
    Sketcher.Constraint("DistanceX", 41, 2, 41, 1, Q("0.645 in")),
    Sketcher.Constraint("DistanceX", 45, 2, 45, 1, Q("0.645 in")),
    Sketcher.Constraint("DistanceY", 11, 1, 11, 2, Q("1.125 in")),
    Sketcher.Constraint("DistanceY", 15, 1, 15, 2, Q("1.125 in")),
    Sketcher.Constraint("DistanceY", 38, 1, 38, 2, Q("1.125 in")),
    Sketcher.Constraint("DistanceY", 42, 1, 42, 2, Q("1.125 in")),
    Sketcher.Constraint("DistanceY", 46, 1, 46, 2, Q("1.125 in")),
    Sketcher.Constraint("DistanceY", 50, 1, 50, 2, Q("1.125 in")),
    Sketcher.Constraint("DistanceX", 6, 2, -1, 1, Q("4.85 in")),
    Sketcher.Constraint("DistanceX", 10, 2, -1, 1, Q("4.35 in")),
    Sketcher.Constraint("DistanceX", 14, 2, -1, 1, Q("3.22 in")),
    Sketcher.Constraint("DistanceX", 26, 2, -1, 1, Q("20.75 in")),
    Sketcher.Constraint("DistanceX", 37, 2, -1, 1, Q("2.09 in")),
    Sketcher.Constraint("DistanceX", 19, 2, -1, 1, Q("21.125 in")),
    Sketcher.Constraint("DistanceX", 24, 2, -1, 1, Q("21.125 in")),
    Sketcher.Constraint("DistanceX", -1, 1, 49, 2, Q("1.345 in")),
    Sketcher.Constraint("DistanceY", 81, 2, -1, 1, Q("3.375 in")),
    Sketcher.Constraint("Radius", 54, Q("107.949989 mm")),
    Sketcher.Constraint("Radius", 56, Q("88.900008 mm")),
    Sketcher.Constraint("Radius", 62, Q("107.949981 mm")),
    Sketcher.Constraint("DistanceX", 18, 1, 18, 2, Q("8.435512 mm")),
    Sketcher.Constraint("DistanceX", 26, 2, 26, 1, Q("8.435512 mm")),
    Sketcher.Constraint("DistanceX", 68, 1, 68, 2, Q("32.839488 mm")),
    Sketcher.Constraint("DistanceX", 70, 2, 70, 1, Q("32.839488 mm")),
    Sketcher.Constraint("DistanceX", 74, 2, 74, 1, Q("32.839488 mm")),
    Sketcher.Constraint("DistanceX", 76, 1, 76, 2, Q("32.839488 mm")),
    Sketcher.Constraint("DistanceY", 6, 2, -1, 1, Q("97.549498 mm")),
    Sketcher.Constraint("DistanceX", 76, 2, -1, 1, Q("106.695501 mm")),
    Sketcher.Constraint("Distance", 57, Q("8.435518 mm")),
    Sketcher.Constraint("Distance", 58, Q("25.071919 mm")),
    Sketcher.Constraint("Distance", 65, Q("25.293879 mm")),
    Sketcher.Constraint("DistanceX", 6, 1, 6, 2, Q("19.018517 mm")),
    Sketcher.Constraint("DistanceX", 21, 1, 21, 2, Q("8.435512 mm")),
    Sketcher.Constraint("DistanceX", 23, 2, 23, 1, Q("8.435512 mm")),
    Sketcher.Constraint("DistanceY", 7, 2, 7, 1, Q("36.666393 mm")),
    Sketcher.Constraint("DistanceY", 67, 2, 67, 1, Q("8.435512 mm")),
    Sketcher.Constraint("DistanceY", 77, 1, 77, 2, Q("8.435512 mm")),
    Sketcher.Constraint("DistanceY", 80, 1, 80, 2, Q("8.435512 mm")),
    Sketcher.Constraint("DistanceY", 62, 3, -1, 1, Q("50.799982 mm")),
    Sketcher.Constraint("DistanceY", -1, 1, 53, 2, Q("39.775039 mm")),
    Sketcher.Constraint("DistanceX", 54, 1, -1, 1, Q("307.521429 mm")),
    Sketcher.Constraint("DistanceY", -1, 1, 56, 2, Q("23.791209 mm")),
    Sketcher.Constraint("DistanceX", 57, 2, -1, 1, Q("335.877518 mm")),
    Sketcher.Constraint("DistanceX", 59, 2, -1, 1, Q("355.420722 mm")),
    Sketcher.Constraint("DistanceY", -1, 1, 59, 2, Q("46.852828 mm")),
    Sketcher.Constraint("DistanceY", -1, 1, 60, 2, Q("37.168459 mm")),
    Sketcher.Constraint("DistanceY", -1, 1, 62, 1, Q("39.775039 mm")),
    Sketcher.Constraint("DistanceX", 63, 2, -1, 1, Q("228.779278 mm")),
    Sketcher.Constraint("DistanceY", -1, 1, 63, 2, Q("46.852828 mm")),
    Sketcher.Constraint("DistanceX", 65, 2, -1, 1, Q("248.564992 mm")),
    Sketcher.Constraint("DistanceY", -1, 1, 65, 2, Q("16.876708 mm")),
    Sketcher.Constraint("DistanceY", -1, 1, 66, 2, Q("23.791209 mm")),
    Sketcher.Constraint("Distance", 59, Q("27.662524 mm")),
    Sketcher.Constraint("Distance", 64, Q("27.662524 mm")),
    Sketcher.Constraint("DistanceX", 61, 2, -1, 1, Q("276.513557 mm")),
])
pad1 = doc.addObject("PartDesign::Pad", "Pad")
body.addObject(pad1)
pad1.Profile = sketch1
pad1.Length = Q("0.75 in")

doc.recompute()
